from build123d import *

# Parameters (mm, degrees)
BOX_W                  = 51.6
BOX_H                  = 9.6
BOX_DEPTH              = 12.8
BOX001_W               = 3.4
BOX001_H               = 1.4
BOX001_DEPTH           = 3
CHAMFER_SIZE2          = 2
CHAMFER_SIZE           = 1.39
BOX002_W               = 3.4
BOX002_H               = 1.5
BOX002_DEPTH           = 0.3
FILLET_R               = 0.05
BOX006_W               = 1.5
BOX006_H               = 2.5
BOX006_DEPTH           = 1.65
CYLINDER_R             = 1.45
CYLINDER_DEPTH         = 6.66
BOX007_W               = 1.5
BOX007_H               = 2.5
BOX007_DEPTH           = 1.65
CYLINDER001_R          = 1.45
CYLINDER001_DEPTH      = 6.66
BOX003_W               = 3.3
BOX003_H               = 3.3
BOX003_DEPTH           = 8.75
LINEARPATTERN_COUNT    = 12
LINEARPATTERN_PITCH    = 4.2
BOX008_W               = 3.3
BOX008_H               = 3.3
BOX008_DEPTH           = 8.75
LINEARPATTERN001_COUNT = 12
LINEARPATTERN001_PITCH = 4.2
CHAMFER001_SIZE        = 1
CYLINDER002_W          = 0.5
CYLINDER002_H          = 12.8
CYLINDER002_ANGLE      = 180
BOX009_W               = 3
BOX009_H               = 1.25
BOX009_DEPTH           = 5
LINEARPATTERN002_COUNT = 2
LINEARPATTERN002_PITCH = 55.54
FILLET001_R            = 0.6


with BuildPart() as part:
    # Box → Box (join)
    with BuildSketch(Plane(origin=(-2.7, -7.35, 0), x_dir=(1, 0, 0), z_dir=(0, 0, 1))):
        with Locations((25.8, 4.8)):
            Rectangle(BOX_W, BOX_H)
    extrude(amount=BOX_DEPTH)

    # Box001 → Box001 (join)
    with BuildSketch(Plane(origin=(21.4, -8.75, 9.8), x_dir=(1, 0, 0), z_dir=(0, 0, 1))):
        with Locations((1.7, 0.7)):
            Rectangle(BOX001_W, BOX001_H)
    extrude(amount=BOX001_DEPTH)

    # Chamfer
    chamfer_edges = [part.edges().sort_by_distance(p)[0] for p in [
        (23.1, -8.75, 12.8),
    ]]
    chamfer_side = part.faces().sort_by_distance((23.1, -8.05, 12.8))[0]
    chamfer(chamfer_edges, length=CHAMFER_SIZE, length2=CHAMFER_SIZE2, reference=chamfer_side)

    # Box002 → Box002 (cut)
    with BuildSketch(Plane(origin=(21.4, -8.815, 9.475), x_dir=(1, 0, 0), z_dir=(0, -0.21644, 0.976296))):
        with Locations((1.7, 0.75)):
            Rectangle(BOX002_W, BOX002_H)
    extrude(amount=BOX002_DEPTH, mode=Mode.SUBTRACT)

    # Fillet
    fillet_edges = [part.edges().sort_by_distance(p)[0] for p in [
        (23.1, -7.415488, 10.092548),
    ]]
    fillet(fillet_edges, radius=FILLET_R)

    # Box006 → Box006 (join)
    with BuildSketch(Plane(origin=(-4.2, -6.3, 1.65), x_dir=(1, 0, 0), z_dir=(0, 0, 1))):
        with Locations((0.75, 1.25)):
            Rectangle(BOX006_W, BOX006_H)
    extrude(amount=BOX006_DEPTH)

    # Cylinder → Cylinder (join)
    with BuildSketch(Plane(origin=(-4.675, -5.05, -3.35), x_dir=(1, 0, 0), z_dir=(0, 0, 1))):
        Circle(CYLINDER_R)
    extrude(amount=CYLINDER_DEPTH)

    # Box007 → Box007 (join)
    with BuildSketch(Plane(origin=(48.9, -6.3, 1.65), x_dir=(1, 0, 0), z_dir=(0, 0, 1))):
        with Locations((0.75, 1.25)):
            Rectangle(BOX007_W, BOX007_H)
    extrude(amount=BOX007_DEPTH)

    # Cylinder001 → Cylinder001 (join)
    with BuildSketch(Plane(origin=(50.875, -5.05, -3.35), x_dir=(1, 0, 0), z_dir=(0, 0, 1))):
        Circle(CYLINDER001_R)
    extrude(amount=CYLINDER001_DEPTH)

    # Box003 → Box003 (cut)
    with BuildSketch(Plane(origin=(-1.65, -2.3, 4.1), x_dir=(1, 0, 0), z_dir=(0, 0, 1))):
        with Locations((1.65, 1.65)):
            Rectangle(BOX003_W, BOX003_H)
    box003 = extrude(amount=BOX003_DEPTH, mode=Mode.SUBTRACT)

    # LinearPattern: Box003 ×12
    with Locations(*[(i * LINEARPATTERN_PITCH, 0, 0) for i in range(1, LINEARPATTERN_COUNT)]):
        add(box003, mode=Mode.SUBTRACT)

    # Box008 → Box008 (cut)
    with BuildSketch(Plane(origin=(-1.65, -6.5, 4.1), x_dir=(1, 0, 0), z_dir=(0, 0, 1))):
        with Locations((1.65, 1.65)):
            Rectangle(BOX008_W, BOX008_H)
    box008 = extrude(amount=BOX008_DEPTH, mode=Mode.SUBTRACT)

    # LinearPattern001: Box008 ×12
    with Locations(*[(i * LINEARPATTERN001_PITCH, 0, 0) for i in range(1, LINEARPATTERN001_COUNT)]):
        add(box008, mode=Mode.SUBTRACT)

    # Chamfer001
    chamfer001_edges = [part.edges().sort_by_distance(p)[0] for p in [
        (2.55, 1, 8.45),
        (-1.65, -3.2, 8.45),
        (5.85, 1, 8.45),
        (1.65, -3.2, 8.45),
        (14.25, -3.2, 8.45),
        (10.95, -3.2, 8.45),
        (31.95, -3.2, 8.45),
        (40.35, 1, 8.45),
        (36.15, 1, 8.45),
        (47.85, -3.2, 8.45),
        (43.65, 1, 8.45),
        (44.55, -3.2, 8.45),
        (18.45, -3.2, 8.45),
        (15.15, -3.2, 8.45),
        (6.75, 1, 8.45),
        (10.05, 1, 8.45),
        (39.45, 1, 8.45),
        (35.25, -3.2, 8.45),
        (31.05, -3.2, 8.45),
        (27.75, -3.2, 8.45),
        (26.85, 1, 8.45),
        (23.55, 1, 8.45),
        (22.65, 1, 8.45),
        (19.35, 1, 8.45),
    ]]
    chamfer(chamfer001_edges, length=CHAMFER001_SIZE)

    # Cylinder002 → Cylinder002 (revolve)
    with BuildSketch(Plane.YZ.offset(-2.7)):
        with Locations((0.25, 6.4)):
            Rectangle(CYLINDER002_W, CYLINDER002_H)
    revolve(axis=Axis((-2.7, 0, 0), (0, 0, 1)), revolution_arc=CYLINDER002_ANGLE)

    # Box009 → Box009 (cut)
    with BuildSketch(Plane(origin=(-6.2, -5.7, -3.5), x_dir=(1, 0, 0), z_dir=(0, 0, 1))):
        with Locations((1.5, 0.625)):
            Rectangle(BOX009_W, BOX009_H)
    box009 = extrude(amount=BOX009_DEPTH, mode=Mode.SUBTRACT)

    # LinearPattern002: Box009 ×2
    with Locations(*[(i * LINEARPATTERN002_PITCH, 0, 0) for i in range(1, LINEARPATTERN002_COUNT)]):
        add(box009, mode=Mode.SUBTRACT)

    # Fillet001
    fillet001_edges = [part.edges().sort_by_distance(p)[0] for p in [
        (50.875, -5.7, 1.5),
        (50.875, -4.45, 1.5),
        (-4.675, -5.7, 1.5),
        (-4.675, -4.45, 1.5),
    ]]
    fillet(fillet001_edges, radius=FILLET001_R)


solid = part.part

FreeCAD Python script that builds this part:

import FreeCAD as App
import Part
import Sketcher


def edges_at(feature, points):
    """Names of the edges that pass closest to the given points."""
    edges = feature.Shape.Edges
    near = lambda p: min(range(len(edges)), key=lambda i: edges[i].distToShape(Part.Vertex(*p))[0])
    return sorted({f"Edge{near(p) + 1}" for p in points})

doc = App.newDocument("Part")
body = doc.addObject("PartDesign::Body", "Body")

sketch1 = doc.addObject("Sketcher::SketchObject", "Sketch")
body.addObject(sketch1)
sketch1.AttachmentSupport = (doc.XY_Plane, [""])
sketch1.MapMode = "FlatFace"
sketch1.addGeometry(Part.LineSegment(App.Vector(-3, 2, 0), App.Vector(-3, -7, 0)), False)
sketch1.addGeometry(Part.LineSegment(App.Vector(-3, -7, 0), App.Vector(49, -7, 0)), False)
sketch1.addGeometry(Part.LineSegment(App.Vector(49, -7, 0), App.Vector(49, 2, 0)), False)
sketch1.addGeometry(Part.LineSegment(App.Vector(49, 2, 0), App.Vector(-3, 2, 0)), False)
sketch1.addConstraint(Sketcher.Constraint("Coincident", 0, 2, 1, 1))
sketch1.addConstraint(Sketcher.Constraint("Coincident", 1, 2, 2, 1))
sketch1.addConstraint(Sketcher.Constraint("Coincident", 2, 2, 3, 1))
sketch1.addConstraint(Sketcher.Constraint("Coincident", 3, 2, 0, 1))
sketch1.addConstraint(Sketcher.Constraint("Vertical", 0))
sketch1.addConstraint(Sketcher.Constraint("Horizontal", 1))
sketch1.addConstraint(Sketcher.Constraint("Vertical", 2))
sketch1.addConstraint(Sketcher.Constraint("Horizontal", 3))
sketch1.addConstraint(Sketcher.Constraint("DistanceX", 1, 1, 1, 2, 51.6))
sketch1.addConstraint(Sketcher.Constraint("DistanceY", 0, 2, 0, 1, 9.6))
sketch1.addConstraint(Sketcher.Constraint("DistanceX", 0, 2, -1, 1, 2.7))
sketch1.addConstraint(Sketcher.Constraint("DistanceY", 0, 2, -1, 1, 7.35))
pad1 = doc.addObject("PartDesign::Pad", "Pad")
body.addObject(pad1)
pad1.Profile = sketch1
pad1.Length = 12.8

sketch2 = doc.addObject("Sketcher::SketchObject", "Sketch001")
body.addObject(sketch2)
sketch2.AttachmentSupport = (doc.XY_Plane, [""])
sketch2.MapMode = "FlatFace"
sketch2.AttachmentOffset = App.Placement(App.Vector(0, 0, 9.8), App.Rotation())
sketch2.addGeometry(Part.LineSegment(App.Vector(21.4, -7.3, 0), App.Vector(21.4, -8.8, 0)), False)
sketch2.addGeometry(Part.LineSegment(App.Vector(21.4, -8.8, 0), App.Vector(24.8, -8.8, 0)), False)
sketch2.addGeometry(Part.LineSegment(App.Vector(24.8, -8.8, 0), App.Vector(24.8, -7.3, 0)), False)
sketch2.addGeometry(Part.LineSegment(App.Vector(24.8, -7.3, 0), App.Vector(21.4, -7.3, 0)), False)
sketch2.addConstraint(Sketcher.Constraint("Coincident", 0, 2, 1, 1))
sketch2.addConstraint(Sketcher.Constraint("Coincident", 1, 2, 2, 1))
sketch2.addConstraint(Sketcher.Constraint("Coincident", 2, 2, 3, 1))
sketch2.addConstraint(Sketcher.Constraint("Coincident", 3, 2, 0, 1))
sketch2.addConstraint(Sketcher.Constraint("Vertical", 0))
sketch2.addConstraint(Sketcher.Constraint("Horizontal", 1))
sketch2.addConstraint(Sketcher.Constraint("Vertical", 2))
sketch2.addConstraint(Sketcher.Constraint("Horizontal", 3))
sketch2.addConstraint(Sketcher.Constraint("DistanceX", 1, 1, 1, 2, 3.4))
sketch2.addConstraint(Sketcher.Constraint("DistanceY", 0, 2, 0, 1, 1.4))
sketch2.addConstraint(Sketcher.Constraint("DistanceX", -1, 1, 0, 2, 21.4))
sketch2.addConstraint(Sketcher.Constraint("DistanceY", 0, 2, -1, 1, 8.75))
pad2 = doc.addObject("PartDesign::Pad", "Pad001")
body.addObject(pad2)
pad2.Profile = sketch2
pad2.Length = 3
doc.recompute()

chamfer = doc.addObject("PartDesign::Chamfer", "Chamfer")
body.addObject(chamfer)
chamfer.Base = (pad2, edges_at(pad2, [(23.1, -8.75, 12.8)]))
chamfer.ChamferType = "Two distances"
chamfer.Size = 1.39
chamfer.Size2 = 2
chamfer.FlipDirection = True

sketch3 = doc.addObject("Sketcher::SketchObject", "Sketch002")
body.addObject(sketch3)
sketch3.Placement = App.Placement(App.Vector(21.4, -8.815, 9.475), App.Rotation(App.Vector(1, 0, 0), App.Vector(0, 0.976295925, 0.216439983), App.Vector(0, -0.216439983, 0.976295925), "ZXY"))
sketch3.addGeometry(Part.LineSegment(App.Vector(0, 1.5, 0), App.Vector(0, 0, 0)), False)
sketch3.addGeometry(Part.LineSegment(App.Vector(0, 0, 0), App.Vector(3.4, 0, 0)), False)
sketch3.addGeometry(Part.LineSegment(App.Vector(3.4, 0, 0), App.Vector(3.4, 1.5, 0)), False)
sketch3.addGeometry(Part.LineSegment(App.Vector(3.4, 1.5, 0), App.Vector(0, 1.5, 0)), False)
sketch3.addConstraint(Sketcher.Constraint("Coincident", 0, 2, 1, 1))
sketch3.addConstraint(Sketcher.Constraint("Coincident", 1, 2, 2, 1))
sketch3.addConstraint(Sketcher.Constraint("Coincident", 2, 2, 3, 1))
sketch3.addConstraint(Sketcher.Constraint("Coincident", 3, 2, 0, 1))
sketch3.addConstraint(Sketcher.Constraint("Vertical", 0))
sketch3.addConstraint(Sketcher.Constraint("Horizontal", 1))
sketch3.addConstraint(Sketcher.Constraint("Vertical", 2))
sketch3.addConstraint(Sketcher.Constraint("Horizontal", 3))
sketch3.addConstraint(Sketcher.Constraint("Coincident", 0, 2, -1, 1))
sketch3.addConstraint(Sketcher.Constraint("DistanceX", 1, 1, 1, 2, 3.4))
sketch3.addConstraint(Sketcher.Constraint("DistanceY", 0, 2, 0, 1, 1.5))
pocket1 = doc.addObject("PartDesign::Pocket", "Pocket")
body.addObject(pocket1)
pocket1.Profile = sketch3
pocket1.Length = 0.3
pocket1.Reversed = True
doc.recompute()

fillet = doc.addObject("PartDesign::Fillet", "Fillet")
body.addObject(fillet)
fillet.Base = (pocket1, edges_at(pocket1, [(23.1, -7.415, 10.093)]))
fillet.Radius = 0.05

sketch4 = doc.addObject("Sketcher::SketchObject", "Sketch003")
body.addObject(sketch4)
sketch4.AttachmentSupport = (doc.XY_Plane, [""])
sketch4.MapMode = "FlatFace"
sketch4.AttachmentOffset = App.Placement(App.Vector(0, 0, 1.65), App.Rotation())
sketch4.addGeometry(Part.LineSegment(App.Vector(-4.2, -3.8, 0), App.Vector(-4.2, -6.3, 0)), False)
sketch4.addGeometry(Part.LineSegment(App.Vector(-4.2, -6.3, 0), App.Vector(-2.7, -6.3, 0)), False)
sketch4.addGeometry(Part.LineSegment(App.Vector(-2.7, -6.3, 0), App.Vector(-2.7, -3.8, 0)), False)
sketch4.addGeometry(Part.LineSegment(App.Vector(-2.7, -3.8, 0), App.Vector(-4.2, -3.8, 0)), False)
sketch4.addConstraint(Sketcher.Constraint("Coincident", 0, 2, 1, 1))
sketch4.addConstraint(Sketcher.Constraint("Coincident", 1, 2, 2, 1))
sketch4.addConstraint(Sketcher.Constraint("Coincident", 2, 2, 3, 1))
sketch4.addConstraint(Sketcher.Constraint("Coincident", 3, 2, 0, 1))
sketch4.addConstraint(Sketcher.Constraint("Vertical", 0))
sketch4.addConstraint(Sketcher.Constraint("Horizontal", 1))
sketch4.addConstraint(Sketcher.Constraint("Vertical", 2))
sketch4.addConstraint(Sketcher.Constraint("Horizontal", 3))
sketch4.addConstraint(Sketcher.Constraint("DistanceX", 1, 1, 1, 2, 1.5))
sketch4.addConstraint(Sketcher.Constraint("DistanceY", 0, 2, 0, 1, 2.5))
sketch4.addConstraint(Sketcher.Constraint("DistanceX", 0, 2, -1, 1, 4.2))
sketch4.addConstraint(Sketcher.Constraint("DistanceY", 0, 2, -1, 1, 6.3))
pad3 = doc.addObject("PartDesign::Pad", "Pad002")
body.addObject(pad3)
pad3.Profile = sketch4
pad3.Length = 1.65

sketch5 = doc.addObject("Sketcher::SketchObject", "Sketch004")
body.addObject(sketch5)
sketch5.AttachmentSupport = (doc.XY_Plane, [""])
sketch5.MapMode = "FlatFace"
sketch5.AttachmentOffset = App.Placement(App.Vector(0, 0, -3.35), App.Rotation())
sketch5.addGeometry(Part.Circle(App.Vector(-4.7, -5, 0), App.Vector(0, 0, 1), 1.4), False)
sketch5.addConstraint(Sketcher.Constraint("Diameter", 0, 2.9))
sketch5.addConstraint(Sketcher.Constraint("DistanceY", 0, 3, -1, 1, 5.05))
sketch5.addConstraint(Sketcher.Constraint("DistanceX", 0, 3, -1, 1, 4.675))
pad4 = doc.addObject("PartDesign::Pad", "Pad003")
body.addObject(pad4)
pad4.Profile = sketch5
pad4.Length = 6.66

sketch6 = doc.addObject("Sketcher::SketchObject", "Sketch005")
body.addObject(sketch6)
sketch6.AttachmentSupport = (doc.XY_Plane, [""])
sketch6.MapMode = "FlatFace"
sketch6.AttachmentOffset = App.Placement(App.Vector(0, 0, 1.65), App.Rotation())
sketch6.addGeometry(Part.LineSegment(App.Vector(48.9, -3.8, 0), App.Vector(48.9, -6.3, 0)), False)
sketch6.addGeometry(Part.LineSegment(App.Vector(48.9, -6.3, 0), App.Vector(50.4, -6.3, 0)), False)
sketch6.addGeometry(Part.LineSegment(App.Vector(50.4, -6.3, 0), App.Vector(50.4, -3.8, 0)), False)
sketch6.addGeometry(Part.LineSegment(App.Vector(50.4, -3.8, 0), App.Vector(48.9, -3.8, 0)), False)
sketch6.addConstraint(Sketcher.Constraint("Coincident", 0, 2, 1, 1))
sketch6.addConstraint(Sketcher.Constraint("Coincident", 1, 2, 2, 1))
sketch6.addConstraint(Sketcher.Constraint("Coincident", 2, 2, 3, 1))
sketch6.addConstraint(Sketcher.Constraint("Coincident", 3, 2, 0, 1))
sketch6.addConstraint(Sketcher.Constraint("Vertical", 0))
sketch6.addConstraint(Sketcher.Constraint("Horizontal", 1))
sketch6.addConstraint(Sketcher.Constraint("Vertical", 2))
sketch6.addConstraint(Sketcher.Constraint("Horizontal", 3))
sketch6.addConstraint(Sketcher.Constraint("DistanceX", 1, 1, 1, 2, 1.5))
sketch6.addConstraint(Sketcher.Constraint("DistanceY", 0, 2, 0, 1, 2.5))
sketch6.addConstraint(Sketcher.Constraint("DistanceX", -1, 1, 0, 2, 48.9))
sketch6.addConstraint(Sketcher.Constraint("DistanceY", 0, 2, -1, 1, 6.3))
pad5 = doc.addObject("PartDesign::Pad", "Pad004")
body.addObject(pad5)
pad5.Profile = sketch6
pad5.Length = 1.65

sketch7 = doc.addObject("Sketcher::SketchObject", "Sketch006")
body.addObject(sketch7)
sketch7.AttachmentSupport = (doc.XY_Plane, [""])
sketch7.MapMode = "FlatFace"
sketch7.AttachmentOffset = App.Placement(App.Vector(0, 0, -3.35), App.Rotation())
sketch7.addGeometry(Part.Circle(App.Vector(50.9, -5, 0), App.Vector(0, 0, 1), 1.4), False)
sketch7.addConstraint(Sketcher.Constraint("Diameter", 0, 2.9))
sketch7.addConstraint(Sketcher.Constraint("DistanceY", 0, 3, -1, 1, 5.05))
sketch7.addConstraint(Sketcher.Constraint("DistanceX", -1, 1, 0, 3, 50.875))
pad6 = doc.addObject("PartDesign::Pad", "Pad005")
body.addObject(pad6)
pad6.Profile = sketch7
pad6.Length = 6.66

sketch8 = doc.addObject("Sketcher::SketchObject", "Sketch007")
body.addObject(sketch8)
sketch8.AttachmentSupport = (doc.XY_Plane, [""])
sketch8.MapMode = "FlatFace"
sketch8.AttachmentOffset = App.Placement(App.Vector(0, 0, 4.1), App.Rotation())
sketch8.addGeometry(Part.LineSegment(App.Vector(-1.6, 1, 0), App.Vector(-1.6, -2.3, 0)), False)
sketch8.addGeometry(Part.LineSegment(App.Vector(-1.6, -2.3, 0), App.Vector(1.6, -2.3, 0)), False)
sketch8.addGeometry(Part.LineSegment(App.Vector(1.6, -2.3, 0), App.Vector(1.6, 1, 0)), False)
sketch8.addGeometry(Part.LineSegment(App.Vector(1.6, 1, 0), App.Vector(-1.6, 1, 0)), False)
sketch8.addConstraint(Sketcher.Constraint("Coincident", 0, 2, 1, 1))
sketch8.addConstraint(Sketcher.Constraint("Coincident", 1, 2, 2, 1))
sketch8.addConstraint(Sketcher.Constraint("Coincident", 2, 2, 3, 1))
sketch8.addConstraint(Sketcher.Constraint("Coincident", 3, 2, 0, 1))
sketch8.addConstraint(Sketcher.Constraint("Vertical", 0))
sketch8.addConstraint(Sketcher.Constraint("Horizontal", 1))
sketch8.addConstraint(Sketcher.Constraint("Vertical", 2))
sketch8.addConstraint(Sketcher.Constraint("Horizontal", 3))
sketch8.addConstraint(Sketcher.Constraint("Equal", 3, 0))
sketch8.addConstraint(Sketcher.Constraint("DistanceX", 1, 1, 1, 2, 3.3))
sketch8.addConstraint(Sketcher.Constraint("DistanceY", -1, 1, 2, 2, 1.0))
sketch8.addConstraint(Sketcher.Constraint("DistanceX", 0, 2, -1, 1, 1.65))
pocket2 = doc.addObject("PartDesign::Pocket", "Pocket001")
body.addObject(pocket2)
pocket2.Profile = sketch8
pocket2.Length = 8.75
pocket2.Reversed = True
doc.recompute()

linearpattern = doc.addObject("PartDesign::LinearPattern", "LinearPattern")
body.addObject(linearpattern)
linearpattern.Originals = [pocket2]
linearpattern.Direction = (doc.X_Axis, [""])
linearpattern.Mode = "offset"
linearpattern.Offset = 4.2
linearpattern.Occurrences = 12
body.Tip = linearpattern

sketch9 = doc.addObject("Sketcher::SketchObject", "Sketch008")
body.addObject(sketch9)
sketch9.AttachmentSupport = (doc.XY_Plane, [""])
sketch9.MapMode = "FlatFace"
sketch9.AttachmentOffset = App.Placement(App.Vector(0, 0, 4.1), App.Rotation())
sketch9.addGeometry(Part.LineSegment(App.Vector(-1.6, -3.2, 0), App.Vector(-1.6, -6.5, 0)), False)
sketch9.addGeometry(Part.LineSegment(App.Vector(-1.6, -6.5, 0), App.Vector(1.6, -6.5, 0)), False)
sketch9.addGeometry(Part.LineSegment(App.Vector(1.6, -6.5, 0), App.Vector(1.6, -3.2, 0)), False)
sketch9.addGeometry(Part.LineSegment(App.Vector(1.6, -3.2, 0), App.Vector(-1.6, -3.2, 0)), False)
sketch9.addConstraint(Sketcher.Constraint("Coincident", 0, 2, 1, 1))
sketch9.addConstraint(Sketcher.Constraint("Coincident", 1, 2, 2, 1))
sketch9.addConstraint(Sketcher.Constraint("Coincident", 2, 2, 3, 1))
sketch9.addConstraint(Sketcher.Constraint("Coincident", 3, 2, 0, 1))
sketch9.addConstraint(Sketcher.Constraint("Vertical", 0))
sketch9.addConstraint(Sketcher.Constraint("Horizontal", 1))
sketch9.addConstraint(Sketcher.Constraint("Vertical", 2))
sketch9.addConstraint(Sketcher.Constraint("Horizontal", 3))
sketch9.addConstraint(Sketcher.Constraint("Equal", 3, 0))
sketch9.addConstraint(Sketcher.Constraint("DistanceX", 1, 1, 1, 2, 3.3))
sketch9.addConstraint(Sketcher.Constraint("DistanceY", 0, 2, -1, 1, 6.5))
sketch9.addConstraint(Sketcher.Constraint("DistanceX", 0, 2, -1, 1, 1.65))
pocket3 = doc.addObject("PartDesign::Pocket", "Pocket002")
body.addObject(pocket3)
pocket3.Profile = sketch9
pocket3.Length = 8.75
pocket3.Reversed = True
doc.recompute()

linearpattern2 = doc.addObject("PartDesign::LinearPattern", "LinearPattern001")
body.addObject(linearpattern2)
linearpattern2.Originals = [pocket3]
linearpattern2.Direction = (doc.X_Axis, [""])
linearpattern2.Mode = "offset"
linearpattern2.Offset = 4.2
linearpattern2.Occurrences = 12
body.Tip = linearpattern2
doc.recompute()

chamfer2 = doc.addObject("PartDesign::Chamfer", "Chamfer001")
body.addObject(chamfer2)
chamfer2.Base = (linearpattern2, edges_at(linearpattern2, [
    (2.55, 1, 8.45),
    (-1.65, -3.2, 8.45),
    (5.85, 1, 8.45),
    (1.65, -3.2, 8.45),
    (14.25, -3.2, 8.45),
    (10.95, -3.2, 8.45),
    (31.95, -3.2, 8.45),
    (40.35, 1, 8.45),
    (36.15, 1, 8.45),
    (47.85, -3.2, 8.45),
    (43.65, 1, 8.45),
    (44.55, -3.2, 8.45),
    (18.45, -3.2, 8.45),
    (15.15, -3.2, 8.45),
    (6.75, 1, 8.45),
    (10.05, 1, 8.45),
    (39.45, 1, 8.45),
    (35.25, -3.2, 8.45),
    (31.05, -3.2, 8.45),
    (27.75, -3.2, 8.45),
    (26.85, 1, 8.45),
    (23.55, 1, 8.45),
    (22.65, 1, 8.45),
    (19.35, 1, 8.45),
]))
chamfer2.Size = 1

sketch10 = doc.addObject("Sketcher::SketchObject", "Sketch009")
body.addObject(sketch10)
sketch10.AttachmentSupport = (doc.YZ_Plane, [""])
sketch10.MapMode = "FlatFace"
sketch10.AttachmentOffset = App.Placement(App.Vector(0, 0, -2.7), App.Rotation())
sketch10.addGeometry(Part.LineSegment(App.Vector(0, 12.8, 0), App.Vector(0, 0, 0)), False)
sketch10.addGeometry(Part.LineSegment(App.Vector(0, 0, 0), App.Vector(0.5, 0, 0)), False)
sketch10.addGeometry(Part.LineSegment(App.Vector(0.5, 0, 0), App.Vector(0.5, 12.8, 0)), False)
sketch10.addGeometry(Part.LineSegment(App.Vector(0.5, 12.8, 0), App.Vector(0, 12.8, 0)), False)
sketch10.addConstraint(Sketcher.Constraint("Coincident", 0, 2, 1, 1))
sketch10.addConstraint(Sketcher.Constraint("Coincident", 1, 2, 2, 1))
sketch10.addConstraint(Sketcher.Constraint("Coincident", 2, 2, 3, 1))
sketch10.addConstraint(Sketcher.Constraint("Coincident", 3, 2, 0, 1))
sketch10.addConstraint(Sketcher.Constraint("Vertical", 0))
sketch10.addConstraint(Sketcher.Constraint("Horizontal", 1))
sketch10.addConstraint(Sketcher.Constraint("Vertical", 2))
sketch10.addConstraint(Sketcher.Constraint("Horizontal", 3))
sketch10.addConstraint(Sketcher.Constraint("Coincident", 0, 2, -1, 1))
sketch10.addConstraint(Sketcher.Constraint("DistanceX", 1, 1, 1, 2, 0.5))
sketch10.addConstraint(Sketcher.Constraint("DistanceY", 0, 2, 0, 1, 12.8))
revolution = doc.addObject("PartDesign::Revolution", "Revolution")
body.addObject(revolution)
revolution.Profile = sketch10
revolution.ReferenceAxis = (sketch10, ["V_Axis"])
revolution.Angle = 180

sketch11 = doc.addObject("Sketcher::SketchObject", "Sketch010")
body.addObject(sketch11)
sketch11.AttachmentSupport = (doc.XY_Plane, [""])
sketch11.MapMode = "FlatFace"
sketch11.AttachmentOffset = App.Placement(App.Vector(0, 0, -3.5), App.Rotation())
sketch11.addGeometry(Part.LineSegment(App.Vector(-6.2, -4.5, 0), App.Vector(-6.2, -5.7, 0)), False)
sketch11.addGeometry(Part.LineSegment(App.Vector(-6.2, -5.7, 0), App.Vector(-3.2, -5.7, 0)), False)
sketch11.addGeometry(Part.LineSegment(App.Vector(-3.2, -5.7, 0), App.Vector(-3.2, -4.5, 0)), False)
sketch11.addGeometry(Part.LineSegment(App.Vector(-3.2, -4.5, 0), App.Vector(-6.2, -4.5, 0)), False)
sketch11.addConstraint(Sketcher.Constraint("Coincident", 0, 2, 1, 1))
sketch11.addConstraint(Sketcher.Constraint("Coincident", 1, 2, 2, 1))
sketch11.addConstraint(Sketcher.Constraint("Coincident", 2, 2, 3, 1))
sketch11.addConstraint(Sketcher.Constraint("Coincident", 3, 2, 0, 1))
sketch11.addConstraint(Sketcher.Constraint("Vertical", 0))
sketch11.addConstraint(Sketcher.Constraint("Horizontal", 1))
sketch11.addConstraint(Sketcher.Constraint("Vertical", 2))
sketch11.addConstraint(Sketcher.Constraint("Horizontal", 3))
sketch11.addConstraint(Sketcher.Constraint("DistanceX", 1, 1, 1, 2, 3.0))
sketch11.addConstraint(Sketcher.Constraint("DistanceY", 0, 2, 0, 1, 1.25))
sketch11.addConstraint(Sketcher.Constraint("DistanceX", 0, 2, -1, 1, 6.2))
sketch11.addConstraint(Sketcher.Constraint("DistanceY", 0, 2, -1, 1, 5.7))
pocket4 = doc.addObject("PartDesign::Pocket", "Pocket003")
body.addObject(pocket4)
pocket4.Profile = sketch11
pocket4.Length = 5
pocket4.Reversed = True
doc.recompute()

linearpattern3 = doc.addObject("PartDesign::LinearPattern", "LinearPattern002")
body.addObject(linearpattern3)
linearpattern3.Originals = [pocket4]
linearpattern3.Direction = (doc.X_Axis, [""])
linearpattern3.Mode = "offset"
linearpattern3.Offset = 55.54
linearpattern3.Occurrences = 2
body.Tip = linearpattern3
doc.recompute()

fillet2 = doc.addObject("PartDesign::Fillet", "Fillet001")
body.addObject(fillet2)
fillet2.Base = (linearpattern3, edges_at(linearpattern3, [
    (50.875, -5.7, 1.5),
    (50.875, -4.45, 1.5),
    (-4.675, -5.7, 1.5),
    (-4.675, -4.45, 1.5),
]))
fillet2.Radius = 0.6

doc.recompute()
